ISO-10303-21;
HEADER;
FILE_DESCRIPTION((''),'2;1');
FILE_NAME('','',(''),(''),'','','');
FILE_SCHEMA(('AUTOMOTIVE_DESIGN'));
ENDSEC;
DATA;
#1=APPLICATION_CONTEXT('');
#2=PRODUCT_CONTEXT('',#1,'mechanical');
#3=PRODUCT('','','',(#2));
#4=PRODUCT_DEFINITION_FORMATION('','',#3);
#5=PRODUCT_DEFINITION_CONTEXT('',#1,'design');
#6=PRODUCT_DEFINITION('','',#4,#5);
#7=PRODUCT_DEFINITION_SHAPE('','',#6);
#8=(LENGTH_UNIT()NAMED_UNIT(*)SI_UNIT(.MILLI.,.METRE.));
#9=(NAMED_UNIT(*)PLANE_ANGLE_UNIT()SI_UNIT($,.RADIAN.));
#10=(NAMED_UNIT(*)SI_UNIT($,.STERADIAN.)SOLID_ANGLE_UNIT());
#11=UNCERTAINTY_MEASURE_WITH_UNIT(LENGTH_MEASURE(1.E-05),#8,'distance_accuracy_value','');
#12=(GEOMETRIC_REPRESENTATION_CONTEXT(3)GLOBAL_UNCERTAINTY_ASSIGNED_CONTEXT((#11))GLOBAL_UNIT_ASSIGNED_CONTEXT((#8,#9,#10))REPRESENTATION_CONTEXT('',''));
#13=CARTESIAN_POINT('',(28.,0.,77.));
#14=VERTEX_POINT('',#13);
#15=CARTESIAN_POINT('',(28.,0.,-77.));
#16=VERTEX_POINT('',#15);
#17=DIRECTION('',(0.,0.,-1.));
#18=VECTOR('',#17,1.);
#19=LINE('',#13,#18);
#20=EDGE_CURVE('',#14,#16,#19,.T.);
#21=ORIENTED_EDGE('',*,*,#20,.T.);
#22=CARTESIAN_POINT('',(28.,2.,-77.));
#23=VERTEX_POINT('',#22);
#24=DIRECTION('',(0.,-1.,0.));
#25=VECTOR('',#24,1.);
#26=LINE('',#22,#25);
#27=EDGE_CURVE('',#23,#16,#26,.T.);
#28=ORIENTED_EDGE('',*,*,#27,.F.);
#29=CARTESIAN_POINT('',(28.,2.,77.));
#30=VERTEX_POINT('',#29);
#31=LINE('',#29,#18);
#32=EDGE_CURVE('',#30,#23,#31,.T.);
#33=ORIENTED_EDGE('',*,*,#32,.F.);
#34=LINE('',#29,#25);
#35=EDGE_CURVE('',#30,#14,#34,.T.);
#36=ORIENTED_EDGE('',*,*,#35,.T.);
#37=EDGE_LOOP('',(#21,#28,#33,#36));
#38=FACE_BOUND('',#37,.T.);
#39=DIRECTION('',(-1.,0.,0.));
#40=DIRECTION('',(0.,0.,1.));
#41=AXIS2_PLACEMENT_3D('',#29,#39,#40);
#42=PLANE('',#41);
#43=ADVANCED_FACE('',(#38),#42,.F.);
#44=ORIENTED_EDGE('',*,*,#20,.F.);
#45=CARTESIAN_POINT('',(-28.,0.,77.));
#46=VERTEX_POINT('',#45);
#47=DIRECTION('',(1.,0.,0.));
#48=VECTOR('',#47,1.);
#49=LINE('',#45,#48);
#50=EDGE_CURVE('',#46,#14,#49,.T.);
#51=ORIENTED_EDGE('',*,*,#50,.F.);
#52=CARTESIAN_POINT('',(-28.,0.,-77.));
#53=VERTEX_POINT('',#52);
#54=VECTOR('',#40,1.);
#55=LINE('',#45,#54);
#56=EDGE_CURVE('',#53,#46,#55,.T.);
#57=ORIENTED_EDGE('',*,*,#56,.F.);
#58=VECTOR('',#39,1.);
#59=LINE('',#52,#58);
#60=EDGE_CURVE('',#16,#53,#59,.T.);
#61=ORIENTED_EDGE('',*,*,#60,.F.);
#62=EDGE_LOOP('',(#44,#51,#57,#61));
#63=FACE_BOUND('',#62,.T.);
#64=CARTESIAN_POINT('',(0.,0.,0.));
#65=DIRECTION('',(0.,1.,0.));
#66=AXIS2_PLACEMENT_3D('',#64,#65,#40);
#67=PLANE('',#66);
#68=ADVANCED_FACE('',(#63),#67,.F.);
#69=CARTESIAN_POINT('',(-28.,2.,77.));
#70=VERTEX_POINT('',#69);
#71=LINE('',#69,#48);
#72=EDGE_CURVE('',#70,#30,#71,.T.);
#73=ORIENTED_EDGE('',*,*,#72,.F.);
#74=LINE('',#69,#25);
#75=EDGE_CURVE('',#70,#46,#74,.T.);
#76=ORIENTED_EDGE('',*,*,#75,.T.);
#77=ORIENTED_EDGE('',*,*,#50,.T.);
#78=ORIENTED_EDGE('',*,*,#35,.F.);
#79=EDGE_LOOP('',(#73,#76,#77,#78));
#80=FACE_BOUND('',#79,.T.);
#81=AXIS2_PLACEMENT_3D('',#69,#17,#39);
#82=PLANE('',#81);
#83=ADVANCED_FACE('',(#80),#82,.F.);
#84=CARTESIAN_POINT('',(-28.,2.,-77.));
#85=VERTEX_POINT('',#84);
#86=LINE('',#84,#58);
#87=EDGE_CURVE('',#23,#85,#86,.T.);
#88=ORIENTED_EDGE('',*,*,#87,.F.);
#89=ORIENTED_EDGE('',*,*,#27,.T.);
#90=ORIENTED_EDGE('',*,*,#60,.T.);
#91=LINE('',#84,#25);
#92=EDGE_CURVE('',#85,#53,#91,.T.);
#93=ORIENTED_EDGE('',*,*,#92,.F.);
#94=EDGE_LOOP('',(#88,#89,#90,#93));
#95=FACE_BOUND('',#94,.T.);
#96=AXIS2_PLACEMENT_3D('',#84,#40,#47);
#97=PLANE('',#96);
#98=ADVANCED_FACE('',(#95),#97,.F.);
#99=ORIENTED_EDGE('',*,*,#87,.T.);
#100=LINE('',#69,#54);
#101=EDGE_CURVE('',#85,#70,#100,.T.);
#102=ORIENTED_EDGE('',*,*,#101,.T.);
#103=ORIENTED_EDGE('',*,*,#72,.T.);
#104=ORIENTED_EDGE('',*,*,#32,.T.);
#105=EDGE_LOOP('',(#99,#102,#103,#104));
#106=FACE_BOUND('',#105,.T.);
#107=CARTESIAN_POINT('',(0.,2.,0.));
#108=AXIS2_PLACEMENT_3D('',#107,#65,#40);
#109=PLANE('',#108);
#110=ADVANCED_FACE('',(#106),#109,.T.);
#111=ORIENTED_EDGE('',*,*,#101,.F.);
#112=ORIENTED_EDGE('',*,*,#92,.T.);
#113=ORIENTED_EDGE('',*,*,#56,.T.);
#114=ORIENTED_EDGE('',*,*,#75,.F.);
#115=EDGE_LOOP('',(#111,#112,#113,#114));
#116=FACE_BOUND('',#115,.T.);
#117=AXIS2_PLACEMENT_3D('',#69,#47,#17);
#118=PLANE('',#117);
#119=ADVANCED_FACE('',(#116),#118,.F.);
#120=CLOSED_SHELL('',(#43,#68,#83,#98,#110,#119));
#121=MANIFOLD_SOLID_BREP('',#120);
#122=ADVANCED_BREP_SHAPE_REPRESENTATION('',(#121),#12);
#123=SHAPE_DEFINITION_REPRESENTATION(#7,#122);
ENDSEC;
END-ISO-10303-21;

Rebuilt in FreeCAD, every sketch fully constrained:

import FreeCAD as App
import Part
import Sketcher
from FreeCAD import Vector
Q = App.Units.Quantity

doc = App.newDocument("Part")
body = doc.addObject("PartDesign::Body", "Body")

# Sketch on XZ plane
sketch1 = body.newObject("Sketcher::SketchObject", "Sketch")
sketch1.AttachmentSupport = (doc.getObject("XZ_Plane"), [""])
sketch1.MapMode = "FlatFace"
sketch1.addGeometry(Part.LineSegment(Vector(-28, -77, 0), Vector(-28, 77, 0)), False)
sketch1.addGeometry(Part.LineSegment(Vector(-28, 77, 0), Vector(28, 77, 0)), False)
sketch1.addGeometry(Part.LineSegment(Vector(28, 77, 0), Vector(28, -77, 0)), False)
sketch1.addGeometry(Part.LineSegment(Vector(28, -77, 0), Vector(-28, -77, 0)), False)
sketch1.addConstraint(Sketcher.Constraint("Coincident", 0, 2, 1, 1))
sketch1.addConstraint(Sketcher.Constraint("Coincident", 1, 2, 2, 1))
sketch1.addConstraint(Sketcher.Constraint("Coincident", 2, 2, 3, 1))
sketch1.addConstraint(Sketcher.Constraint("Coincident", 3, 2, 0, 1))
sketch1.addConstraint(Sketcher.Constraint("Vertical", 0))
sketch1.addConstraint(Sketcher.Constraint("Horizontal", 1))
sketch1.addConstraint(Sketcher.Constraint("Vertical", 2))
sketch1.addConstraint(Sketcher.Constraint("Horizontal", 3))
sketch1.addConstraint(Sketcher.Constraint("Symmetric", 0, 2, 2, 2, -1, 1))
sketch1.addConstraint(Sketcher.Constraint("DistanceX", 1, 1, 1, 2, Q("56 mm")))
sketch1.addConstraint(Sketcher.Constraint("DistanceY", 0, 1, 0, 2, Q("154 mm")))
pad1 = body.newObject("PartDesign::Pad", "Pad")
pad1.Profile = sketch1
pad1.Length = 2
pad1.Reversed = True

doc.recompute()
